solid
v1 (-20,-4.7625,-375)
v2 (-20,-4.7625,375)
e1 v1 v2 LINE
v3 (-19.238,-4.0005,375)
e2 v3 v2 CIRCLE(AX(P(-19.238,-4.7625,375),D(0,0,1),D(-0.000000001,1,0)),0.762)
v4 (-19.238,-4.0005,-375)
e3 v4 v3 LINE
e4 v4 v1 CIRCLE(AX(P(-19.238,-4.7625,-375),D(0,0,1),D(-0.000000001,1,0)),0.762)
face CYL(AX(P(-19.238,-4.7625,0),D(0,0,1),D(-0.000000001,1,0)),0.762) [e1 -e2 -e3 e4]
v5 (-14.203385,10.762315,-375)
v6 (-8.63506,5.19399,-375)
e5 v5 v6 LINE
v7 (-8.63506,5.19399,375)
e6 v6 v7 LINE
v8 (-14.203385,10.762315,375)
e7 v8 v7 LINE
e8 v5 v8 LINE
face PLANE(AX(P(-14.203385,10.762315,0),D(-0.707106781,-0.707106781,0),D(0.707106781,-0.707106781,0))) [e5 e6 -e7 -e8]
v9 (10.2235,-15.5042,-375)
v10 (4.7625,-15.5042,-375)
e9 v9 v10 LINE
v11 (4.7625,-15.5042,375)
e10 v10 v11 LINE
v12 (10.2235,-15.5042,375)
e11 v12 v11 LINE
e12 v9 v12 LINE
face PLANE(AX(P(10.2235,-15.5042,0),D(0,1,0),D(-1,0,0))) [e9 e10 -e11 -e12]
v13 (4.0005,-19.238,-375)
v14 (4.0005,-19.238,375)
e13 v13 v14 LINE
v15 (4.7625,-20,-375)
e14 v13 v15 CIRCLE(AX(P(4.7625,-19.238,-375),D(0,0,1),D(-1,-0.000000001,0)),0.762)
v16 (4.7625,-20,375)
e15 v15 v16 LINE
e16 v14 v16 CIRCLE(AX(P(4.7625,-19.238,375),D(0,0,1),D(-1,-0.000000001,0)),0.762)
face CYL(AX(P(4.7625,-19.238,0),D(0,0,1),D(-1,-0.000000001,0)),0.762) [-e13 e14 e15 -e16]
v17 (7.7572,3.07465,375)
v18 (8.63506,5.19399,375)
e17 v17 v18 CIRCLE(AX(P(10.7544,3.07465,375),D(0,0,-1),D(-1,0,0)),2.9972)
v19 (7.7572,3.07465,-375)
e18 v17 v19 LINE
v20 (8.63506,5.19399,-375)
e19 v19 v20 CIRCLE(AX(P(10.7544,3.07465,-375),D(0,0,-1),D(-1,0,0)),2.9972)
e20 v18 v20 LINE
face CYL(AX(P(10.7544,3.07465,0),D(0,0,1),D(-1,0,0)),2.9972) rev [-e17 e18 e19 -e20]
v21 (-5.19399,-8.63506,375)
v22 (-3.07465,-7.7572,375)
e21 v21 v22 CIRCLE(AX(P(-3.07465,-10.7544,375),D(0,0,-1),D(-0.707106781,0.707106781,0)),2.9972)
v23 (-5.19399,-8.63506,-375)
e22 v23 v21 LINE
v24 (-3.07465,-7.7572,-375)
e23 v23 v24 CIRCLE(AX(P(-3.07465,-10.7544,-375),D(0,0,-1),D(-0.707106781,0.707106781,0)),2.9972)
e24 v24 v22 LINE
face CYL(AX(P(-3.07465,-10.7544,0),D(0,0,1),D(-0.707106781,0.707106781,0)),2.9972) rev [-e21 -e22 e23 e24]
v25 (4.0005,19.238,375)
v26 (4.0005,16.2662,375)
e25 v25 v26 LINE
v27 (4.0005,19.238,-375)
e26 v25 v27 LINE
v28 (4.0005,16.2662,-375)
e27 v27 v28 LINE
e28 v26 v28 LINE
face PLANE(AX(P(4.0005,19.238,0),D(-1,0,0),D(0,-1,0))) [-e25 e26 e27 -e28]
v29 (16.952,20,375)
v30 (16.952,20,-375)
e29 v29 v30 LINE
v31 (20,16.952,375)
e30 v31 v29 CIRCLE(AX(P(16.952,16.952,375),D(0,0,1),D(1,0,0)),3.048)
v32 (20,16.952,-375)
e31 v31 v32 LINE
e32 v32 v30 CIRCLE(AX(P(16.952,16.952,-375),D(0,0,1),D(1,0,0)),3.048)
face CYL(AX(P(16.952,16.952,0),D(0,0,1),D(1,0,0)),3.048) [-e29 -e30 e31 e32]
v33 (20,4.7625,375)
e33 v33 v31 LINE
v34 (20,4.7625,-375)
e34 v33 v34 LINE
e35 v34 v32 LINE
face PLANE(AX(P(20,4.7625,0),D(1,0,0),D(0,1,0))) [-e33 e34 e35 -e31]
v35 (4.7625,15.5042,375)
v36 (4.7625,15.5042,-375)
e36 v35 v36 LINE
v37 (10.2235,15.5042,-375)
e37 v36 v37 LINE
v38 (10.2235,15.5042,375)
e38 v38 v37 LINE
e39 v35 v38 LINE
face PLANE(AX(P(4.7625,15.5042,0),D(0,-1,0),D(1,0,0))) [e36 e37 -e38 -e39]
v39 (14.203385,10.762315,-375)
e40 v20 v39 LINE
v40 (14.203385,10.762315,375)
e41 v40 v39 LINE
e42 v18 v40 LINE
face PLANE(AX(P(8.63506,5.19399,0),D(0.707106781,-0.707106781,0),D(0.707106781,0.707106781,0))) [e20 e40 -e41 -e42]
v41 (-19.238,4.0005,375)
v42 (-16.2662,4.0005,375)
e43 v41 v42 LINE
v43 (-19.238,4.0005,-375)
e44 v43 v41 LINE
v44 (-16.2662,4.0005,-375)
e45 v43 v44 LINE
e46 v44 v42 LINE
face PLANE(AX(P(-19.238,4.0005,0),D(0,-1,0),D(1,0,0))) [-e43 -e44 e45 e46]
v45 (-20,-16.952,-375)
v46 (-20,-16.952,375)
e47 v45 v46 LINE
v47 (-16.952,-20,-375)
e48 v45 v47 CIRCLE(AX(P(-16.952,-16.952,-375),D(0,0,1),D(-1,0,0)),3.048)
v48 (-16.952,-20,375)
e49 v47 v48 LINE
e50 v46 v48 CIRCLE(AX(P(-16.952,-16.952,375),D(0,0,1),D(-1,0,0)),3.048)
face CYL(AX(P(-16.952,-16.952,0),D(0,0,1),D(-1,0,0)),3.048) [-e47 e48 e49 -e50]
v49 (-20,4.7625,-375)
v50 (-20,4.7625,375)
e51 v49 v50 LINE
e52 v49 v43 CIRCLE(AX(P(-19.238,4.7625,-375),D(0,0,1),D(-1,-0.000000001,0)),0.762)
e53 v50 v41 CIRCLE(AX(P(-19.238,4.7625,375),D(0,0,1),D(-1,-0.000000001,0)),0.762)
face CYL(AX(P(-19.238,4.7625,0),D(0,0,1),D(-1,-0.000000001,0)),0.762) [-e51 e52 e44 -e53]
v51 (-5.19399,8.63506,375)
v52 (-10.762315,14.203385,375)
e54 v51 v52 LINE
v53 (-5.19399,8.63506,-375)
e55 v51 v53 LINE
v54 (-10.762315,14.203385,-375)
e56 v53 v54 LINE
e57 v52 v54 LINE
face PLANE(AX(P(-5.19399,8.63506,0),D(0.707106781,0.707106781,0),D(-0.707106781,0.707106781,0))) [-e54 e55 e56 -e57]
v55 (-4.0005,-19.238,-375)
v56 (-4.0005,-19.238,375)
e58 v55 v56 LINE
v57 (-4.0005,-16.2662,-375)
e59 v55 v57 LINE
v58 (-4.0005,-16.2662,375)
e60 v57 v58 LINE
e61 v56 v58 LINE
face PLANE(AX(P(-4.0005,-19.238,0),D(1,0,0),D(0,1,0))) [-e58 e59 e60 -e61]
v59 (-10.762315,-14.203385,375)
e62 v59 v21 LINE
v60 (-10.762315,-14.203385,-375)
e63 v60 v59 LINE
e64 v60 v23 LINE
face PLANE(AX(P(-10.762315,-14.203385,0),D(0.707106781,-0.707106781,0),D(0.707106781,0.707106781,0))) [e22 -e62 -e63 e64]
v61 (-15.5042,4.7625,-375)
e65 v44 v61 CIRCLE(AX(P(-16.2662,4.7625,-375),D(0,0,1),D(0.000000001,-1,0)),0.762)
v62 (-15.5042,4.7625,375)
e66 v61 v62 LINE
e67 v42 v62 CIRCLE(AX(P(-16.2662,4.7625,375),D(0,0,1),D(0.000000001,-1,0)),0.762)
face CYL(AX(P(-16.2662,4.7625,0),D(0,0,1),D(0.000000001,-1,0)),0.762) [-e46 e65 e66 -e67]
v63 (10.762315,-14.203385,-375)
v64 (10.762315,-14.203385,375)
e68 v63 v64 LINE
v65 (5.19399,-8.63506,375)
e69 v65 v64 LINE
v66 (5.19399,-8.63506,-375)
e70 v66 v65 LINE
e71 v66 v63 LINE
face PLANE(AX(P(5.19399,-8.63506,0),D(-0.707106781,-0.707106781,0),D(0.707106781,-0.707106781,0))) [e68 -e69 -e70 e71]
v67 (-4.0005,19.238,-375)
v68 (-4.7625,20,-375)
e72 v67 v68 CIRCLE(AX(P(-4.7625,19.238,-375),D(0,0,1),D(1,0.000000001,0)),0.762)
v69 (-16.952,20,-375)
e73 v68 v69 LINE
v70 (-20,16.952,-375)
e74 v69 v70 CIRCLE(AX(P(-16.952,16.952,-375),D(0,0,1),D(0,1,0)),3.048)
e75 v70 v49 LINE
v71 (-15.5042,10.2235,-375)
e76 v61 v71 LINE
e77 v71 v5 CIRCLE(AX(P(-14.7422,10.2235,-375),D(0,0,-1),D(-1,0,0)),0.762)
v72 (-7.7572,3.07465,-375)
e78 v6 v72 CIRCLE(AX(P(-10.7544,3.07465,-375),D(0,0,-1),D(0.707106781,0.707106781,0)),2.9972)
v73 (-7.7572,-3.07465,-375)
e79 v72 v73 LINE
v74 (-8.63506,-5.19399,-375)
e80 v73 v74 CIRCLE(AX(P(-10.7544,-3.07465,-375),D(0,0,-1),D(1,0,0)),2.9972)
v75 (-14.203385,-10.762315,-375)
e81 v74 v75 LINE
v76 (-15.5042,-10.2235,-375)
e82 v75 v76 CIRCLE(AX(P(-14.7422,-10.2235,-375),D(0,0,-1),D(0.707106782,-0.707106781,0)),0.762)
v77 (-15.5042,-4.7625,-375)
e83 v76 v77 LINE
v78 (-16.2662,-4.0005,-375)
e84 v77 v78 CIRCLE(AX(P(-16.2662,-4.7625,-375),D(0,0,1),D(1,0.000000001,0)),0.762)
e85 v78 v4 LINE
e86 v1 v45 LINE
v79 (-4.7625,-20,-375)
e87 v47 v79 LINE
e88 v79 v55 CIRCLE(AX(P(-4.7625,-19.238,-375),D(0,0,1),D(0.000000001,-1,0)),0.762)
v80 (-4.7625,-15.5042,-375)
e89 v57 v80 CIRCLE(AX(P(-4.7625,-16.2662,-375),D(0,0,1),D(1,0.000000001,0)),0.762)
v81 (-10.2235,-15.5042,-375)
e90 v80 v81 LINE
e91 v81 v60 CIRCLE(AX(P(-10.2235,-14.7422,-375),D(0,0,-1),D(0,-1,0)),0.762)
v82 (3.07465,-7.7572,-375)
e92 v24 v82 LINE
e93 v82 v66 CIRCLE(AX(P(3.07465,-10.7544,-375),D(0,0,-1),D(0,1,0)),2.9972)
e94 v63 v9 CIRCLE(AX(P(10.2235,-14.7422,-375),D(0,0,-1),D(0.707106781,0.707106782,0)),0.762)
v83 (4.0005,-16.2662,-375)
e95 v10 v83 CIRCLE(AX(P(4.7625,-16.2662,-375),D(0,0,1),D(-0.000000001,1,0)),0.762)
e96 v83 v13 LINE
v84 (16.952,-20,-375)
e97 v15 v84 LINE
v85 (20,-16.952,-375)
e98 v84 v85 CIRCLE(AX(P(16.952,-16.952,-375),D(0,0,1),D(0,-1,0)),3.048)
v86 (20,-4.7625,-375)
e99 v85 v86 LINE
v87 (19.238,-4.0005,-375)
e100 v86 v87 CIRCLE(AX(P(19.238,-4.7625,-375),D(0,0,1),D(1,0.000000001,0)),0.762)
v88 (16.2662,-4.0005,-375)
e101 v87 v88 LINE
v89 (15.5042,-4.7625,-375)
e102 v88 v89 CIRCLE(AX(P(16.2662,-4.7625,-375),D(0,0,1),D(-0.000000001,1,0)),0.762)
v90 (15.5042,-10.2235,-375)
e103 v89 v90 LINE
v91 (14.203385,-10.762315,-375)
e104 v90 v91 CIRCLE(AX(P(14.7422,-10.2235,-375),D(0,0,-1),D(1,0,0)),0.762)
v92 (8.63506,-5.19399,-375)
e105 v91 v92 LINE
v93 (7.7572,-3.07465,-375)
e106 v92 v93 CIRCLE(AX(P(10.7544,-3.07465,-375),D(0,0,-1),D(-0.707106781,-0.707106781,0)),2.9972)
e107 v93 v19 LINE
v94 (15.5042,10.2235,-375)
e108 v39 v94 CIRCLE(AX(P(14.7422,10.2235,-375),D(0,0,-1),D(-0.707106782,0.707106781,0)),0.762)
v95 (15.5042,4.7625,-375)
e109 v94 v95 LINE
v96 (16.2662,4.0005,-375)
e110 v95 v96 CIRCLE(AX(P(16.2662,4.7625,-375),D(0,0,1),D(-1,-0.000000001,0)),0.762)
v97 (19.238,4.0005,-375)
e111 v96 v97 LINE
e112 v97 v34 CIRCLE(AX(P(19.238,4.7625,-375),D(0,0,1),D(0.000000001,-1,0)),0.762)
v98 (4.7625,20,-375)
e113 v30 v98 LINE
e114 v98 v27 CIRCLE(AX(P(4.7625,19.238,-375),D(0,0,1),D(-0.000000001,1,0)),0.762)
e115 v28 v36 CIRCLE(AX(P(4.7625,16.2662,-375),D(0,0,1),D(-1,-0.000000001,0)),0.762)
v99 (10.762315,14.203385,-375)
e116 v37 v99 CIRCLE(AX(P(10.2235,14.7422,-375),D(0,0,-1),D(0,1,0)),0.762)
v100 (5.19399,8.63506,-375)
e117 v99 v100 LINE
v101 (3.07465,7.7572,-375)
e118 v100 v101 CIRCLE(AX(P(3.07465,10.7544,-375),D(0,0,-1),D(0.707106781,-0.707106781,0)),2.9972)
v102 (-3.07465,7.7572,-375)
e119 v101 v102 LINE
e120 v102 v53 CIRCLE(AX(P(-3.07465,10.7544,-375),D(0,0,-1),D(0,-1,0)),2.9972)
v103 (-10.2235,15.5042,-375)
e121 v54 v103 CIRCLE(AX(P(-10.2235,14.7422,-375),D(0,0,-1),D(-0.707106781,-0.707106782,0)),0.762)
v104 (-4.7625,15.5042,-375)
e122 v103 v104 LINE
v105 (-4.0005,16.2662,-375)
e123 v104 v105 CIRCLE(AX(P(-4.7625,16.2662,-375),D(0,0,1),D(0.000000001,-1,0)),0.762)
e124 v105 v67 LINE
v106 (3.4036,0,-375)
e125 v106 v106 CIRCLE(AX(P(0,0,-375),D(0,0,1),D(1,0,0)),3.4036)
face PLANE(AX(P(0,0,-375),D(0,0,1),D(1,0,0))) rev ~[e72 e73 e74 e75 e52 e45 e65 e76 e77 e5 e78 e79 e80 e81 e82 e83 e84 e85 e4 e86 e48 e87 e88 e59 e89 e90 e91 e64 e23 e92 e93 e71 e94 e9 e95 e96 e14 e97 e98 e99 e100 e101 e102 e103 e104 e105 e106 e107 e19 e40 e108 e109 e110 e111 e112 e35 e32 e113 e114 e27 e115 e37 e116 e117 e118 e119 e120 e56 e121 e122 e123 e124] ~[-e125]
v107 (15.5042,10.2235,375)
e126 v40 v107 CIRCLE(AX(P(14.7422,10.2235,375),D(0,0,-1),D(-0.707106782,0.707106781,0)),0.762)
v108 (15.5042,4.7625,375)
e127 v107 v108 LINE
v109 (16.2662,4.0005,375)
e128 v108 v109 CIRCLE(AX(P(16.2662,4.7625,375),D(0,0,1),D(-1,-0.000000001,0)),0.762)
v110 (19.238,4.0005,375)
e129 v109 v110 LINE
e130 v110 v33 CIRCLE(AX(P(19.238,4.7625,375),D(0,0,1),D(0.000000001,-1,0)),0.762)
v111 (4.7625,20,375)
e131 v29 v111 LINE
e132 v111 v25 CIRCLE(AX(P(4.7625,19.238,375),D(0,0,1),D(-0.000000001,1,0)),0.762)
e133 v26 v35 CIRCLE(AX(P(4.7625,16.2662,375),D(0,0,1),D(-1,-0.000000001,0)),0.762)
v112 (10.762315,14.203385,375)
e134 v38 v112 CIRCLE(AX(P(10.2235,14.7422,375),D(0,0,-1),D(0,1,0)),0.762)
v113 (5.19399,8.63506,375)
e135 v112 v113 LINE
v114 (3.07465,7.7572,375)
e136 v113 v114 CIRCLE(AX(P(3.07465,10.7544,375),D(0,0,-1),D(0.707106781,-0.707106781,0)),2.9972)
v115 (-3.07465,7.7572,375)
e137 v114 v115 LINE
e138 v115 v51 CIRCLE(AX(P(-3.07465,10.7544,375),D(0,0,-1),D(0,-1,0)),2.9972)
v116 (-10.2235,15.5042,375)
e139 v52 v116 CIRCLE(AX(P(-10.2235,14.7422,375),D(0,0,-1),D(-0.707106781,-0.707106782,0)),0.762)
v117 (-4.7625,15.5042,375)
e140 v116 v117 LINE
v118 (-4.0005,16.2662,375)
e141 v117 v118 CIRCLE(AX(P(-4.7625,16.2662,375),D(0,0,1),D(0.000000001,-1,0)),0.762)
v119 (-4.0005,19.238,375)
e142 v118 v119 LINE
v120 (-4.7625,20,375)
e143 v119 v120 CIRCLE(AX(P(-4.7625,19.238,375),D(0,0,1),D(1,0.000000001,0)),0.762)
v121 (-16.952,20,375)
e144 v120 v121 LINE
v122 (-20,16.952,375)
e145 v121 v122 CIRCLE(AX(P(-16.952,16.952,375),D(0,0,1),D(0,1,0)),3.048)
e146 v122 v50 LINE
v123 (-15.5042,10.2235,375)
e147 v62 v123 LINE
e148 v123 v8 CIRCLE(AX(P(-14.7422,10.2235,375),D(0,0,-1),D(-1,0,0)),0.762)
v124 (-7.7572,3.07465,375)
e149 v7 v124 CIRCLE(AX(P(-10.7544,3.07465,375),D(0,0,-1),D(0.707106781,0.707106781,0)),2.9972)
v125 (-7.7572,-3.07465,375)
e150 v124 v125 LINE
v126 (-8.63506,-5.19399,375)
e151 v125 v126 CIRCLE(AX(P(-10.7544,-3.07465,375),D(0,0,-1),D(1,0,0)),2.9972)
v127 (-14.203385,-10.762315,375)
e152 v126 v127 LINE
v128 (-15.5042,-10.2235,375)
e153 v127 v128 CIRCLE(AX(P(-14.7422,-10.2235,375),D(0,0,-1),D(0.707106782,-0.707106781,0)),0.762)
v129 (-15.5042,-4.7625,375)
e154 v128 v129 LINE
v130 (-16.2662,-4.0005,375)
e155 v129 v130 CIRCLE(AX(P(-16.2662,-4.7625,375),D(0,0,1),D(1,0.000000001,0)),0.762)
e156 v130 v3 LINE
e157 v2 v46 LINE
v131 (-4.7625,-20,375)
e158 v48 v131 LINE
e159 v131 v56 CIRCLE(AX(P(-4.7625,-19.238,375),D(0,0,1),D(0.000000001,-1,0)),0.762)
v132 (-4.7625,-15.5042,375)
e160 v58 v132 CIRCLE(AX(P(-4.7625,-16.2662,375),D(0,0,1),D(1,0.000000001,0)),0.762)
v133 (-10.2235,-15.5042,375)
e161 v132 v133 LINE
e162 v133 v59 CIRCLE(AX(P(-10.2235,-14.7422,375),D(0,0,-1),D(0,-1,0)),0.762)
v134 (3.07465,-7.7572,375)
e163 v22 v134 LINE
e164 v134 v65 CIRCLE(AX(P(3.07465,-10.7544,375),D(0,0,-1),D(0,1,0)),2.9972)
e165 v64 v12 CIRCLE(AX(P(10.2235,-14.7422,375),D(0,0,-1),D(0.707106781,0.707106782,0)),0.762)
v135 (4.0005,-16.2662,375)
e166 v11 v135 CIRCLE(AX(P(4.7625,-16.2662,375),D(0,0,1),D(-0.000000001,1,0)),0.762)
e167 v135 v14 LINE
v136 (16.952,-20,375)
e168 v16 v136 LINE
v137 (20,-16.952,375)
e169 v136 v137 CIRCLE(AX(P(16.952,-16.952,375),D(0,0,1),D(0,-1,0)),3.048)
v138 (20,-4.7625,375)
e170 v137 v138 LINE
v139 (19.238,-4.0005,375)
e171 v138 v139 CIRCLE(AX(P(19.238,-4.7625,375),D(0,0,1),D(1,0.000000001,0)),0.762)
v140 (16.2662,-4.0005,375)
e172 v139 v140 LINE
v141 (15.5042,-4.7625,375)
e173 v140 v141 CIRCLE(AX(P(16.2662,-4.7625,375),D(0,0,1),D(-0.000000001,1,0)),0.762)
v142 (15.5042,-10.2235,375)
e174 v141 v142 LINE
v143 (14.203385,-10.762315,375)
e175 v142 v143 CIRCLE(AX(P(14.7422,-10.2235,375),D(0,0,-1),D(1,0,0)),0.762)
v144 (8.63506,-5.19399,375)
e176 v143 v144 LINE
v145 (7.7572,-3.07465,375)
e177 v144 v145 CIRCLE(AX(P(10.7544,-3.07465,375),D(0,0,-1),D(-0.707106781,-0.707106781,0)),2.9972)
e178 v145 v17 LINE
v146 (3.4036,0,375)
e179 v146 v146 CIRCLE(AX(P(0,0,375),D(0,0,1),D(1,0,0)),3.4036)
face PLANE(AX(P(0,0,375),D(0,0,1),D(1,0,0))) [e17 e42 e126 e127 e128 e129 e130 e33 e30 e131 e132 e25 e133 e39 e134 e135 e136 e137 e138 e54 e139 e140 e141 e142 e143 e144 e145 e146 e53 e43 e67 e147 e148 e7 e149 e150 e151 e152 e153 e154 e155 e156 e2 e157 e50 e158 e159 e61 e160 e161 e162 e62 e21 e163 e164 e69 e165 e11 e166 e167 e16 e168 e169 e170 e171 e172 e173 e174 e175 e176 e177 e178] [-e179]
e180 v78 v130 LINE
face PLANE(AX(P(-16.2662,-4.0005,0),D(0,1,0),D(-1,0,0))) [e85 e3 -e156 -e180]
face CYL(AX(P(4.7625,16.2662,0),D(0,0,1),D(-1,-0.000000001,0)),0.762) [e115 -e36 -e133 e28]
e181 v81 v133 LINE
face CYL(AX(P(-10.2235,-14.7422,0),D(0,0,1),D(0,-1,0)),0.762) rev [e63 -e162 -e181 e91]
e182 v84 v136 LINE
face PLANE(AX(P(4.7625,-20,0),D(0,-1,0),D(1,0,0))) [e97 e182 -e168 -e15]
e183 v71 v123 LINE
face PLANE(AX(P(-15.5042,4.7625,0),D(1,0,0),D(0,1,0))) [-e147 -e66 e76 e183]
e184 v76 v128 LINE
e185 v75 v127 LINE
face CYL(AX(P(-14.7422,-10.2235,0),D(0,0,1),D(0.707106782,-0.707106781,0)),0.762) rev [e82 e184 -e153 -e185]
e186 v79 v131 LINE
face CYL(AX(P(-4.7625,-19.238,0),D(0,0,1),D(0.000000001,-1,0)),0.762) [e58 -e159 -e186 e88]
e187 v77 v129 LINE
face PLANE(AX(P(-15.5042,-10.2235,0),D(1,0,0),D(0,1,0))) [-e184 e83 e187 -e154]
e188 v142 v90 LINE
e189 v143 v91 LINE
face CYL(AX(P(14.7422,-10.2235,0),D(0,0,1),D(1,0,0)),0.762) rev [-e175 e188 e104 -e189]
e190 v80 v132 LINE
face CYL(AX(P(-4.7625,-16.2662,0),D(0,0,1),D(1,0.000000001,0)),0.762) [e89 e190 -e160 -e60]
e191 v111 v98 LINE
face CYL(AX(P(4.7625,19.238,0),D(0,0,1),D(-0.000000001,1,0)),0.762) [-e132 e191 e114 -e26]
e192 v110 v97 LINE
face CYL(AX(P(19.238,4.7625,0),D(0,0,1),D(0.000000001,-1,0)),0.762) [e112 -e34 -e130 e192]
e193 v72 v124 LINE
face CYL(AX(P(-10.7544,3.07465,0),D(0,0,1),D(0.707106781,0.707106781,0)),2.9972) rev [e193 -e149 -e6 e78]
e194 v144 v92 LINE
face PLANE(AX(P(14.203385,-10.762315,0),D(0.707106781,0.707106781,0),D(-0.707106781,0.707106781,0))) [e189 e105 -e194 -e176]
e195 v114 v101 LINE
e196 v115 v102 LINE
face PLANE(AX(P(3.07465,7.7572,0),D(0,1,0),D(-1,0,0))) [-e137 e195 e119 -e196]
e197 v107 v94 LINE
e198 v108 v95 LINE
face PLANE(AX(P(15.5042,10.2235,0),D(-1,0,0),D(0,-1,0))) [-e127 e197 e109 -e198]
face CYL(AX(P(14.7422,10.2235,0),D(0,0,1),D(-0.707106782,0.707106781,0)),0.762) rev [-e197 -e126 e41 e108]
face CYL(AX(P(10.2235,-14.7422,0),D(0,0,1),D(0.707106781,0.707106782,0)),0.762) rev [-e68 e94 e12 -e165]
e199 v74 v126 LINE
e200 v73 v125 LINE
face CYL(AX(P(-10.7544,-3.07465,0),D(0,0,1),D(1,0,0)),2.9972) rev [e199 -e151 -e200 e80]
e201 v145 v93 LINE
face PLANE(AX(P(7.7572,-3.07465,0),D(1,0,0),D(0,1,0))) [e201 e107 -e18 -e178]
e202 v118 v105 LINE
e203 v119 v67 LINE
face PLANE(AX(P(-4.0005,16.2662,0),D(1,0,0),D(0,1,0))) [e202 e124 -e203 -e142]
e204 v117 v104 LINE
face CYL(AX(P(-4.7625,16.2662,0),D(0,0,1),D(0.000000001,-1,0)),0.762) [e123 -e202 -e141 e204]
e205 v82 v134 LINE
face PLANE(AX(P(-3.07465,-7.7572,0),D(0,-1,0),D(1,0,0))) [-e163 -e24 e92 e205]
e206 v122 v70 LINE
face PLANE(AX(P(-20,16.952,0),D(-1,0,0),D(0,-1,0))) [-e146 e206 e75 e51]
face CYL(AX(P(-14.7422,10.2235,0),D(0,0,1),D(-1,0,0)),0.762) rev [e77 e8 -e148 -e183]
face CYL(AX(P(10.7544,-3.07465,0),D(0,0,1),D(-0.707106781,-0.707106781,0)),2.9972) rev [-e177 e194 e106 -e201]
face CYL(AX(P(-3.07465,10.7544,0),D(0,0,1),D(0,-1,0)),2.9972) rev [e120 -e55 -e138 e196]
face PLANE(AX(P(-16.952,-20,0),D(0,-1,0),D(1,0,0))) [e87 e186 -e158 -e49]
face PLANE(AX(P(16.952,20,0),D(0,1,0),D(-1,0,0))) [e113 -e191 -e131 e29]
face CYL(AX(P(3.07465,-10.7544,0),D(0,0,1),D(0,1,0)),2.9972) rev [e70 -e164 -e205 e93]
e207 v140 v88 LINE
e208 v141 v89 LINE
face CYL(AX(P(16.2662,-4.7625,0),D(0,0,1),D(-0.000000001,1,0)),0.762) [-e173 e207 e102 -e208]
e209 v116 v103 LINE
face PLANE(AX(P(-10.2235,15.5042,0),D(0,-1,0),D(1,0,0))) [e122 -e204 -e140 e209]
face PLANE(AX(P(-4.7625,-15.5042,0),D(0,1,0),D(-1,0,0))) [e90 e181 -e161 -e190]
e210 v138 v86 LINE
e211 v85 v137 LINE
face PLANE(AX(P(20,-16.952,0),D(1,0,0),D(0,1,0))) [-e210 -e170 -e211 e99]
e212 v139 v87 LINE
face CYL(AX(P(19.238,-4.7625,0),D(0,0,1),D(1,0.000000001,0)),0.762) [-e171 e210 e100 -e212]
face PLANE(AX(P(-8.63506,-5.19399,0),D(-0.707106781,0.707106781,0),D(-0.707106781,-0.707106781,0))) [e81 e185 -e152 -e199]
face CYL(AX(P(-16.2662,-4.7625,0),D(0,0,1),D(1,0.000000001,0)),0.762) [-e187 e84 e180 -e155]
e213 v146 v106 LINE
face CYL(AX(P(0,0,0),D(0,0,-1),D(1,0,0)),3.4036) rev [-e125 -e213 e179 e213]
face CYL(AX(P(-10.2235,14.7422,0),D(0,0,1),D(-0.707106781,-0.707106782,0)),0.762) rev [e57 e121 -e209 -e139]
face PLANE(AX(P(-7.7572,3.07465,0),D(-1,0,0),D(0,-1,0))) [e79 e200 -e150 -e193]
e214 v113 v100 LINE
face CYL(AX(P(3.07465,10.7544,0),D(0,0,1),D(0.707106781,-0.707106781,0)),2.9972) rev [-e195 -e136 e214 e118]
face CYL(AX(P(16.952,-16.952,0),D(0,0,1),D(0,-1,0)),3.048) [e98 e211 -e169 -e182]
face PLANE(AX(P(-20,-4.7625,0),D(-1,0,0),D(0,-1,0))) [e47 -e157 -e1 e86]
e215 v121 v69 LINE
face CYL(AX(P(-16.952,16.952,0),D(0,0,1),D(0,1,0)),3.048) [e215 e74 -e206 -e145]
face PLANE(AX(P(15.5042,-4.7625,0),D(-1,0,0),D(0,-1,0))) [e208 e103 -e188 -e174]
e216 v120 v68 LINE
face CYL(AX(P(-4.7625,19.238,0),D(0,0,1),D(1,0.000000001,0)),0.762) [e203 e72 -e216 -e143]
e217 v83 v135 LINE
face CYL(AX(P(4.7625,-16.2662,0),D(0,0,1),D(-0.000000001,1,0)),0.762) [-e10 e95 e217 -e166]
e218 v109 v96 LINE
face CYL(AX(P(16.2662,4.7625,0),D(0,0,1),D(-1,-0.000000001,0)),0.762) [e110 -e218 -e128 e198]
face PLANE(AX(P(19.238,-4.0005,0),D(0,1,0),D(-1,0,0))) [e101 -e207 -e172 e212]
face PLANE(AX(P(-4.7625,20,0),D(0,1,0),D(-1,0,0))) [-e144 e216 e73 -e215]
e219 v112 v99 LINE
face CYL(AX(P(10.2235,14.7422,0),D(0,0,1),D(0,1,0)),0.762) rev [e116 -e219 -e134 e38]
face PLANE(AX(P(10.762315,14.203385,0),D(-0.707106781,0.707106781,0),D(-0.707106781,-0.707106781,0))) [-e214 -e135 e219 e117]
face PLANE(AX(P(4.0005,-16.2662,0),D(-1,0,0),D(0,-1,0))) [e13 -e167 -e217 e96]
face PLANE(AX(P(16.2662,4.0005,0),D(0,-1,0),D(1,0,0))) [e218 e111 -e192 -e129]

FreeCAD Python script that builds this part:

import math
import FreeCAD as App
import Part
import Sketcher
Q = App.Units.Quantity

doc = App.newDocument("Part")
params = doc.addObject("Spreadsheet::Sheet", "Params")
for row, (alias, value) in enumerate([
    ("sketch1_radius", "0.03 in"),
    ("sketch1_radius2", "0.12 in"),
    ("sketch1_diameter", "0.268 in"),
    ("sketch1_radius3", "0.118 in"),
    ("sketch1_width", "0.117 in"),
    ("pad1_length", "750 mm"),
], start=1):
    params.set(f"A{row}", alias)
    params.set(f"B{row}", "=" + value)
    params.setAlias(f"B{row}", alias)

body = doc.addObject("PartDesign::Body", "Body")

# Sketch on XY plane
sketch1 = body.newObject("Sketcher::SketchObject", "Sketch")
sketch1.AttachmentSupport = (doc.getObject("XY_Plane"), [""])
sketch1.MapMode = "FlatFace"
sketch1.addGeometry(Part.LineSegment(App.Vector(-20, 16.952, 0), App.Vector(-20, 4.7625, 0)), False)
sketch1.addGeometry(Part.ArcOfCircle(Part.Circle(App.Vector(-19.238, 4.7625, 0), App.Vector(0, 0, 1), 0.762), math.radians(-180), math.radians(-90)), False)
sketch1.addGeometry(Part.LineSegment(App.Vector(-19.238, 4.0005, 0), App.Vector(-16.2662, 4.0005, 0)), False)
sketch1.addGeometry(Part.ArcOfCircle(Part.Circle(App.Vector(-16.2662, 4.7625, 0), App.Vector(0, 0, 1), 0.762), math.radians(-90), math.radians(0)), False)
sketch1.addGeometry(Part.LineSegment(App.Vector(-15.5042, 4.7625, 0), App.Vector(-15.5042, 10.2235, 0)), False)
sketch1.addGeometry(Part.ArcOfCircle(Part.Circle(App.Vector(-14.7422, 10.2235, 0), App.Vector(0, 0, 1), 0.762), math.radians(45), math.radians(180)), False)
sketch1.addGeometry(Part.LineSegment(App.Vector(-14.203385, 10.762315, 0), App.Vector(-8.63506, 5.19399, 0)), False)
sketch1.addGeometry(Part.ArcOfCircle(Part.Circle(App.Vector(-10.7544, 3.07465, 0), App.Vector(0, 0, 1), 2.9972), math.radians(0), math.radians(45)), False)
sketch1.addGeometry(Part.LineSegment(App.Vector(-7.7572, 3.07465, 0), App.Vector(-7.7572, -3.07465, 0)), False)
sketch1.addGeometry(Part.ArcOfCircle(Part.Circle(App.Vector(-10.7544, -3.07465, 0), App.Vector(0, 0, 1), 2.9972), math.radians(-45), math.radians(0)), False)
sketch1.addGeometry(Part.LineSegment(App.Vector(-8.63506, -5.19399, 0), App.Vector(-14.203385, -10.762315, 0)), False)
sketch1.addGeometry(Part.ArcOfCircle(Part.Circle(App.Vector(-14.7422, -10.2235, 0), App.Vector(0, 0, 1), 0.762), math.radians(180), math.radians(315)), False)
sketch1.addGeometry(Part.LineSegment(App.Vector(-15.5042, -10.2235, 0), App.Vector(-15.5042, -4.7625, 0)), False)
sketch1.addGeometry(Part.ArcOfCircle(Part.Circle(App.Vector(-16.2662, -4.7625, 0), App.Vector(0, 0, 1), 0.762), math.radians(0), math.radians(90)), False)
sketch1.addGeometry(Part.LineSegment(App.Vector(-16.2662, -4.0005, 0), App.Vector(-19.238, -4.0005, 0)), False)
sketch1.addGeometry(Part.ArcOfCircle(Part.Circle(App.Vector(-19.238, -4.7625, 0), App.Vector(0, 0, 1), 0.762), math.radians(90), math.radians(180)), False)
sketch1.addGeometry(Part.LineSegment(App.Vector(-20, -4.7625, 0), App.Vector(-20, -16.952, 0)), False)
sketch1.addGeometry(Part.ArcOfCircle(Part.Circle(App.Vector(-16.952, -16.952, 0), App.Vector(0, 0, 1), 3.048), math.radians(180), math.radians(270)), False)
sketch1.addGeometry(Part.LineSegment(App.Vector(-16.952, -20, 0), App.Vector(-4.7625, -20, 0)), False)
sketch1.addGeometry(Part.ArcOfCircle(Part.Circle(App.Vector(-4.7625, -19.238, 0), App.Vector(0, 0, 1), 0.762), math.radians(-90), math.radians(0)), False)
sketch1.addGeometry(Part.LineSegment(App.Vector(-4.0005, -19.238, 0), App.Vector(-4.0005, -16.2662, 0)), False)
sketch1.addGeometry(Part.ArcOfCircle(Part.Circle(App.Vector(-4.7625, -16.2662, 0), App.Vector(0, 0, 1), 0.762), math.radians(0), math.radians(90)), False)
sketch1.addGeometry(Part.LineSegment(App.Vector(-4.7625, -15.5042, 0), App.Vector(-10.2235, -15.5042, 0)), False)
sketch1.addGeometry(Part.ArcOfCircle(Part.Circle(App.Vector(-10.2235, -14.7422, 0), App.Vector(0, 0, 1), 0.762), math.radians(135), math.radians(270)), False)
sketch1.addGeometry(Part.LineSegment(App.Vector(-10.762315, -14.203385, 0), App.Vector(-5.19399, -8.63506, 0)), False)
sketch1.addGeometry(Part.ArcOfCircle(Part.Circle(App.Vector(-3.07465, -10.7544, 0), App.Vector(0, 0, 1), 2.9972), math.radians(90), math.radians(135)), False)
sketch1.addGeometry(Part.LineSegment(App.Vector(-3.07465, -7.7572, 0), App.Vector(3.07465, -7.7572, 0)), False)
sketch1.addGeometry(Part.ArcOfCircle(Part.Circle(App.Vector(3.07465, -10.7544, 0), App.Vector(0, 0, 1), 2.9972), math.radians(45), math.radians(90)), False)
sketch1.addGeometry(Part.LineSegment(App.Vector(5.19399, -8.63506, 0), App.Vector(10.762315, -14.203385, 0)), False)
sketch1.addGeometry(Part.ArcOfCircle(Part.Circle(App.Vector(10.2235, -14.7422, 0), App.Vector(0, 0, 1), 0.762), math.radians(-90), math.radians(45)), False)
sketch1.addGeometry(Part.LineSegment(App.Vector(10.2235, -15.5042, 0), App.Vector(4.7625, -15.5042, 0)), False)
sketch1.addGeometry(Part.ArcOfCircle(Part.Circle(App.Vector(4.7625, -16.2662, 0), App.Vector(0, 0, 1), 0.762), math.radians(90), math.radians(180)), False)
sketch1.addGeometry(Part.LineSegment(App.Vector(4.0005, -16.2662, 0), App.Vector(4.0005, -19.238, 0)), False)
sketch1.addGeometry(Part.ArcOfCircle(Part.Circle(App.Vector(4.7625, -19.238, 0), App.Vector(0, 0, 1), 0.762), math.radians(-180), math.radians(-90)), False)
sketch1.addGeometry(Part.LineSegment(App.Vector(4.7625, -20, 0), App.Vector(16.952, -20, 0)), False)
sketch1.addGeometry(Part.ArcOfCircle(Part.Circle(App.Vector(16.952, -16.952, 0), App.Vector(0, 0, 1), 3.048), math.radians(-90), math.radians(0)), False)
sketch1.addGeometry(Part.LineSegment(App.Vector(20, -16.952, 0), App.Vector(20, -4.7625, 0)), False)
sketch1.addGeometry(Part.ArcOfCircle(Part.Circle(App.Vector(19.238, -4.7625, 0), App.Vector(0, 0, 1), 0.762), math.radians(0), math.radians(90)), False)
sketch1.addGeometry(Part.LineSegment(App.Vector(19.238, -4.0005, 0), App.Vector(16.2662, -4.0005, 0)), False)
sketch1.addGeometry(Part.ArcOfCircle(Part.Circle(App.Vector(16.2662, -4.7625, 0), App.Vector(0, 0, 1), 0.762), math.radians(90), math.radians(180)), False)
sketch1.addGeometry(Part.LineSegment(App.Vector(15.5042, -4.7625, 0), App.Vector(15.5042, -10.2235, 0)), False)
sketch1.addGeometry(Part.ArcOfCircle(Part.Circle(App.Vector(14.7422, -10.2235, 0), App.Vector(0, 0, 1), 0.762), math.radians(-135), math.radians(0)), False)
sketch1.addGeometry(Part.LineSegment(App.Vector(14.203385, -10.762315, 0), App.Vector(8.63506, -5.19399, 0)), False)
sketch1.addGeometry(Part.ArcOfCircle(Part.Circle(App.Vector(10.7544, -3.07465, 0), App.Vector(0, 0, 1), 2.9972), math.radians(180), math.radians(225)), False)
sketch1.addGeometry(Part.LineSegment(App.Vector(7.7572, -3.07465, 0), App.Vector(7.7572, 3.07465, 0)), False)
sketch1.addGeometry(Part.ArcOfCircle(Part.Circle(App.Vector(10.7544, 3.07465, 0), App.Vector(0, 0, 1), 2.9972), math.radians(135), math.radians(180)), False)
sketch1.addGeometry(Part.LineSegment(App.Vector(8.63506, 5.19399, 0), App.Vector(14.203385, 10.762315, 0)), False)
sketch1.addGeometry(Part.ArcOfCircle(Part.Circle(App.Vector(14.7422, 10.2235, 0), App.Vector(0, 0, 1), 0.762), math.radians(0), math.radians(135)), False)
sketch1.addGeometry(Part.LineSegment(App.Vector(15.5042, 10.2235, 0), App.Vector(15.5042, 4.7625, 0)), False)
sketch1.addGeometry(Part.ArcOfCircle(Part.Circle(App.Vector(16.2662, 4.7625, 0), App.Vector(0, 0, 1), 0.762), math.radians(-180), math.radians(-90)), False)
sketch1.addGeometry(Part.LineSegment(App.Vector(16.2662, 4.0005, 0), App.Vector(19.238, 4.0005, 0)), False)
sketch1.addGeometry(Part.ArcOfCircle(Part.Circle(App.Vector(19.238, 4.7625, 0), App.Vector(0, 0, 1), 0.762), math.radians(-90), math.radians(0)), False)
sketch1.addGeometry(Part.LineSegment(App.Vector(20, 4.7625, 0), App.Vector(20, 16.952, 0)), False)
sketch1.addGeometry(Part.ArcOfCircle(Part.Circle(App.Vector(16.952, 16.952, 0), App.Vector(0, 0, 1), 3.048), math.radians(0), math.radians(90)), False)
sketch1.addGeometry(Part.LineSegment(App.Vector(16.952, 20, 0), App.Vector(4.7625, 20, 0)), False)
sketch1.addGeometry(Part.ArcOfCircle(Part.Circle(App.Vector(4.7625, 19.238, 0), App.Vector(0, 0, 1), 0.762), math.radians(90), math.radians(180)), False)
sketch1.addGeometry(Part.LineSegment(App.Vector(4.0005, 19.238, 0), App.Vector(4.0005, 16.2662, 0)), False)
sketch1.addGeometry(Part.ArcOfCircle(Part.Circle(App.Vector(4.7625, 16.2662, 0), App.Vector(0, 0, 1), 0.762), math.radians(-180), math.radians(-90)), False)
sketch1.addGeometry(Part.LineSegment(App.Vector(4.7625, 15.5042, 0), App.Vector(10.2235, 15.5042, 0)), False)
sketch1.addGeometry(Part.ArcOfCircle(Part.Circle(App.Vector(10.2235, 14.7422, 0), App.Vector(0, 0, 1), 0.762), math.radians(-45), math.radians(90)), False)
sketch1.addGeometry(Part.LineSegment(App.Vector(10.762315, 14.203385, 0), App.Vector(5.19399, 8.63506, 0)), False)
sketch1.addGeometry(Part.ArcOfCircle(Part.Circle(App.Vector(3.07465, 10.7544, 0), App.Vector(0, 0, 1), 2.9972), math.radians(-90), math.radians(-45)), False)
sketch1.addGeometry(Part.LineSegment(App.Vector(3.07465, 7.7572, 0), App.Vector(-3.07465, 7.7572, 0)), False)
sketch1.addGeometry(Part.ArcOfCircle(Part.Circle(App.Vector(-3.07465, 10.7544, 0), App.Vector(0, 0, 1), 2.9972), math.radians(-135), math.radians(-90)), False)
sketch1.addGeometry(Part.LineSegment(App.Vector(-5.19399, 8.63506, 0), App.Vector(-10.762315, 14.203385, 0)), False)
sketch1.addGeometry(Part.ArcOfCircle(Part.Circle(App.Vector(-10.2235, 14.7422, 0), App.Vector(0, 0, 1), 0.762), math.radians(90), math.radians(225)), False)
sketch1.addGeometry(Part.LineSegment(App.Vector(-10.2235, 15.5042, 0), App.Vector(-4.7625, 15.5042, 0)), False)
sketch1.addGeometry(Part.ArcOfCircle(Part.Circle(App.Vector(-4.7625, 16.2662, 0), App.Vector(0, 0, 1), 0.762), math.radians(-90), math.radians(0)), False)
sketch1.addGeometry(Part.LineSegment(App.Vector(-4.0005, 16.2662, 0), App.Vector(-4.0005, 19.238, 0)), False)
sketch1.addGeometry(Part.ArcOfCircle(Part.Circle(App.Vector(-4.7625, 19.238, 0), App.Vector(0, 0, 1), 0.762), math.radians(0), math.radians(90)), False)
sketch1.addGeometry(Part.LineSegment(App.Vector(-4.7625, 20, 0), App.Vector(-16.952, 20, 0)), False)
sketch1.addGeometry(Part.ArcOfCircle(Part.Circle(App.Vector(-16.952, 16.952, 0), App.Vector(0, 0, 1), 3.048), math.radians(90), math.radians(180)), False)
sketch1.addGeometry(Part.Circle(App.Vector(0, 0, 0), App.Vector(0, 0, 1), 3.4036), False)
sketch1.addConstraint(Sketcher.Constraint("Tangent", 0, 2, 1, 1))
sketch1.addConstraint(Sketcher.Constraint("Tangent", 1, 2, 2, 1))
sketch1.addConstraint(Sketcher.Constraint("Tangent", 2, 2, 3, 1))
sketch1.addConstraint(Sketcher.Constraint("Tangent", 3, 2, 4, 1))
sketch1.addConstraint(Sketcher.Constraint("Tangent", 4, 2, 5, 2))
sketch1.addConstraint(Sketcher.Constraint("Tangent", 5, 1, 6, 1))
sketch1.addConstraint(Sketcher.Constraint("Tangent", 6, 2, 7, 2))
sketch1.addConstraint(Sketcher.Constraint("Tangent", 7, 1, 8, 1))
sketch1.addConstraint(Sketcher.Constraint("Tangent", 8, 2, 9, 2))
sketch1.addConstraint(Sketcher.Constraint("Tangent", 9, 1, 10, 1))
sketch1.addConstraint(Sketcher.Constraint("Tangent", 10, 2, 11, 2))
sketch1.addConstraint(Sketcher.Constraint("Tangent", 11, 1, 12, 1))
sketch1.addConstraint(Sketcher.Constraint("Tangent", 12, 2, 13, 1))
sketch1.addConstraint(Sketcher.Constraint("Tangent", 13, 2, 14, 1))
sketch1.addConstraint(Sketcher.Constraint("Tangent", 14, 2, 15, 1))
sketch1.addConstraint(Sketcher.Constraint("Tangent", 15, 2, 16, 1))
sketch1.addConstraint(Sketcher.Constraint("Tangent", 16, 2, 17, 1))
sketch1.addConstraint(Sketcher.Constraint("Tangent", 17, 2, 18, 1))
sketch1.addConstraint(Sketcher.Constraint("Tangent", 18, 2, 19, 1))
sketch1.addConstraint(Sketcher.Constraint("Tangent", 19, 2, 20, 1))
sketch1.addConstraint(Sketcher.Constraint("Tangent", 20, 2, 21, 1))
sketch1.addConstraint(Sketcher.Constraint("Tangent", 21, 2, 22, 1))
sketch1.addConstraint(Sketcher.Constraint("Tangent", 22, 2, 23, 2))
sketch1.addConstraint(Sketcher.Constraint("Tangent", 23, 1, 24, 1))
sketch1.addConstraint(Sketcher.Constraint("Tangent", 24, 2, 25, 2))
sketch1.addConstraint(Sketcher.Constraint("Tangent", 25, 1, 26, 1))
sketch1.addConstraint(Sketcher.Constraint("Tangent", 26, 2, 27, 2))
sketch1.addConstraint(Sketcher.Constraint("Tangent", 27, 1, 28, 1))
sketch1.addConstraint(Sketcher.Constraint("Tangent", 28, 2, 29, 2))
sketch1.addConstraint(Sketcher.Constraint("Tangent", 29, 1, 30, 1))
sketch1.addConstraint(Sketcher.Constraint("Tangent", 30, 2, 31, 1))
sketch1.addConstraint(Sketcher.Constraint("Tangent", 31, 2, 32, 1))
sketch1.addConstraint(Sketcher.Constraint("Tangent", 32, 2, 33, 1))
sketch1.addConstraint(Sketcher.Constraint("Tangent", 33, 2, 34, 1))
sketch1.addConstraint(Sketcher.Constraint("Tangent", 34, 2, 35, 1))
sketch1.addConstraint(Sketcher.Constraint("Tangent", 35, 2, 36, 1))
sketch1.addConstraint(Sketcher.Constraint("Tangent", 36, 2, 37, 1))
sketch1.addConstraint(Sketcher.Constraint("Tangent", 37, 2, 38, 1))
sketch1.addConstraint(Sketcher.Constraint("Tangent", 38, 2, 39, 1))
sketch1.addConstraint(Sketcher.Constraint("Tangent", 39, 2, 40, 1))
sketch1.addConstraint(Sketcher.Constraint("Tangent", 40, 2, 41, 2))
sketch1.addConstraint(Sketcher.Constraint("Tangent", 41, 1, 42, 1))
sketch1.addConstraint(Sketcher.Constraint("Tangent", 42, 2, 43, 2))
sketch1.addConstraint(Sketcher.Constraint("Tangent", 43, 1, 44, 1))
sketch1.addConstraint(Sketcher.Constraint("Tangent", 44, 2, 45, 2))
sketch1.addConstraint(Sketcher.Constraint("Tangent", 45, 1, 46, 1))
sketch1.addConstraint(Sketcher.Constraint("Tangent", 46, 2, 47, 2))
sketch1.addConstraint(Sketcher.Constraint("Tangent", 47, 1, 48, 1))
sketch1.addConstraint(Sketcher.Constraint("Tangent", 48, 2, 49, 1))
sketch1.addConstraint(Sketcher.Constraint("Tangent", 49, 2, 50, 1))
sketch1.addConstraint(Sketcher.Constraint("Tangent", 50, 2, 51, 1))
sketch1.addConstraint(Sketcher.Constraint("Tangent", 51, 2, 52, 1))
sketch1.addConstraint(Sketcher.Constraint("Tangent", 52, 2, 53, 1))
sketch1.addConstraint(Sketcher.Constraint("Tangent", 53, 2, 54, 1))
sketch1.addConstraint(Sketcher.Constraint("Tangent", 54, 2, 55, 1))
sketch1.addConstraint(Sketcher.Constraint("Tangent", 55, 2, 56, 1))
sketch1.addConstraint(Sketcher.Constraint("Tangent", 56, 2, 57, 1))
sketch1.addConstraint(Sketcher.Constraint("Tangent", 57, 2, 58, 1))
sketch1.addConstraint(Sketcher.Constraint("Tangent", 58, 2, 59, 2))
sketch1.addConstraint(Sketcher.Constraint("Tangent", 59, 1, 60, 1))
sketch1.addConstraint(Sketcher.Constraint("Tangent", 60, 2, 61, 2))
sketch1.addConstraint(Sketcher.Constraint("Tangent", 61, 1, 62, 1))
sketch1.addConstraint(Sketcher.Constraint("Tangent", 62, 2, 63, 2))
sketch1.addConstraint(Sketcher.Constraint("Tangent", 63, 1, 64, 1))
sketch1.addConstraint(Sketcher.Constraint("Tangent", 64, 2, 65, 2))
sketch1.addConstraint(Sketcher.Constraint("Tangent", 65, 1, 66, 1))
sketch1.addConstraint(Sketcher.Constraint("Tangent", 66, 2, 67, 1))
sketch1.addConstraint(Sketcher.Constraint("Tangent", 67, 2, 68, 1))
sketch1.addConstraint(Sketcher.Constraint("Tangent", 68, 2, 69, 1))
sketch1.addConstraint(Sketcher.Constraint("Tangent", 69, 2, 70, 1))
sketch1.addConstraint(Sketcher.Constraint("Tangent", 70, 2, 71, 1))
sketch1.addConstraint(Sketcher.Constraint("Tangent", 71, 2, 0, 1))
sketch1.addConstraint(Sketcher.Constraint("Vertical", 0))
sketch1.addConstraint(Sketcher.Constraint("Horizontal", 2))
sketch1.addConstraint(Sketcher.Constraint("Vertical", 4))
sketch1.addConstraint(Sketcher.Constraint("Vertical", 8))
sketch1.addConstraint(Sketcher.Constraint("Vertical", 12))
sketch1.addConstraint(Sketcher.Constraint("Horizontal", 14))
sketch1.addConstraint(Sketcher.Constraint("Vertical", 16))
sketch1.addConstraint(Sketcher.Constraint("Horizontal", 18))
sketch1.addConstraint(Sketcher.Constraint("Vertical", 20))
sketch1.addConstraint(Sketcher.Constraint("Horizontal", 22))
sketch1.addConstraint(Sketcher.Constraint("Horizontal", 26))
sketch1.addConstraint(Sketcher.Constraint("Horizontal", 30))
sketch1.addConstraint(Sketcher.Constraint("Vertical", 32))
sketch1.addConstraint(Sketcher.Constraint("Horizontal", 34))
sketch1.addConstraint(Sketcher.Constraint("Vertical", 36))
sketch1.addConstraint(Sketcher.Constraint("Horizontal", 38))
sketch1.addConstraint(Sketcher.Constraint("Vertical", 40))
sketch1.addConstraint(Sketcher.Constraint("Vertical", 44))
sketch1.addConstraint(Sketcher.Constraint("Vertical", 48))
sketch1.addConstraint(Sketcher.Constraint("Horizontal", 50))
sketch1.addConstraint(Sketcher.Constraint("Vertical", 52))
sketch1.addConstraint(Sketcher.Constraint("Horizontal", 54))
sketch1.addConstraint(Sketcher.Constraint("Vertical", 56))
sketch1.addConstraint(Sketcher.Constraint("Horizontal", 58))
sketch1.addConstraint(Sketcher.Constraint("Horizontal", 62))
sketch1.addConstraint(Sketcher.Constraint("Horizontal", 66))
sketch1.addConstraint(Sketcher.Constraint("Vertical", 68))
sketch1.addConstraint(Sketcher.Constraint("Horizontal", 70))
sketch1.addConstraint(Sketcher.Constraint("Coincident", 72, 3, -1, 1))
sketch1.addConstraint(Sketcher.Constraint("Equal", 1, 3))
sketch1.addConstraint(Sketcher.Constraint("Equal", 3, 5))
sketch1.addConstraint(Sketcher.Constraint("Equal", 7, 9))
sketch1.addConstraint(Sketcher.Constraint("Equal", 5, 11))
sketch1.addConstraint(Sketcher.Constraint("Equal", 11, 13))
sketch1.addConstraint(Sketcher.Constraint("Equal", 13, 15))
sketch1.addConstraint(Sketcher.Constraint("Equal", 15, 19))
sketch1.addConstraint(Sketcher.Constraint("Equal", 19, 21))
sketch1.addConstraint(Sketcher.Constraint("Equal", 21, 23))
sketch1.addConstraint(Sketcher.Constraint("Equal", 9, 25))
sketch1.addConstraint(Sketcher.Constraint("Equal", 25, 27))
sketch1.addConstraint(Sketcher.Constraint("Equal", 23, 29))
sketch1.addConstraint(Sketcher.Constraint("Equal", 29, 31))
sketch1.addConstraint(Sketcher.Constraint("Equal", 31, 33))
sketch1.addConstraint(Sketcher.Constraint("Equal", 17, 35))
sketch1.addConstraint(Sketcher.Constraint("Equal", 33, 37))
sketch1.addConstraint(Sketcher.Constraint("Equal", 37, 39))
sketch1.addConstraint(Sketcher.Constraint("Equal", 39, 41))
sketch1.addConstraint(Sketcher.Constraint("Equal", 27, 43))
sketch1.addConstraint(Sketcher.Constraint("Equal", 43, 45))
sketch1.addConstraint(Sketcher.Constraint("Equal", 41, 47))
sketch1.addConstraint(Sketcher.Constraint("Equal", 47, 49))
sketch1.addConstraint(Sketcher.Constraint("Equal", 49, 51))
sketch1.addConstraint(Sketcher.Constraint("Equal", 35, 53))
sketch1.addConstraint(Sketcher.Constraint("Equal", 51, 55))
sketch1.addConstraint(Sketcher.Constraint("Equal", 55, 57))
sketch1.addConstraint(Sketcher.Constraint("Equal", 57, 59))
sketch1.addConstraint(Sketcher.Constraint("Equal", 45, 61))
sketch1.addConstraint(Sketcher.Constraint("Equal", 61, 63))
sketch1.addConstraint(Sketcher.Constraint("Equal", 59, 65))
sketch1.addConstraint(Sketcher.Constraint("Equal", 65, 67))
sketch1.addConstraint(Sketcher.Constraint("Equal", 67, 69))
sketch1.addConstraint(Sketcher.Constraint("Equal", 53, 71))
sketch1.addConstraint(Sketcher.Constraint("Symmetric", 1, 3, 37, 3, -1, 1))
sketch1.addConstraint(Sketcher.Constraint("Symmetric", 5, 3, 41, 3, -1, 1))
sketch1.addConstraint(Sketcher.Constraint("Symmetric", 7, 3, 43, 3, -1, 1))
sketch1.addConstraint(Sketcher.Constraint("Symmetric", 11, 3, 47, 3, -1, 1))
sketch1.addConstraint(Sketcher.Constraint("Symmetric", 15, 3, 51, 3, -1, 1))
sketch1.addConstraint(Sketcher.Constraint("Symmetric", 19, 3, 55, 3, -1, 1))
sketch1.addConstraint(Sketcher.Constraint("Symmetric", 23, 3, 59, 3, -1, 1))
sketch1.addConstraint(Sketcher.Constraint("Symmetric", 25, 3, 61, 3, -1, 1))
sketch1.addConstraint(Sketcher.Constraint("Symmetric", 29, 3, 65, 3, -1, 1))
sketch1.addConstraint(Sketcher.Constraint("Symmetric", 33, 3, 69, 3, -1, 1))
sketch1.addConstraint(Sketcher.Constraint("Symmetric", 23, 3, 29, 3, -2))
sketch1.addConstraint(Sketcher.Constraint("Symmetric", 19, 3, 33, 3, -2))
sketch1.addConstraint(Sketcher.Constraint("Symmetric", 15, 3, 37, 3, -2))
sketch1.addConstraint(Sketcher.Constraint("Symmetric", 11, 3, 41, 3, -2))
sketch1.addConstraint(Sketcher.Constraint("Perpendicular", 6, 10))
sketch1.addConstraint(Sketcher.Constraint("Parallel", 10, 24))
sketch1.addConstraint(Sketcher.Constraint("Perpendicular", 24, 28))
sketch1.addConstraint(Sketcher.Constraint("Perpendicular", 42, 46))
sketch1.addConstraint(Sketcher.Constraint("Perpendicular", 60, 64))
sketch1.addConstraint(Sketcher.Constraint("Horizontal", 9, 3, 43, 3))
sketch1.addConstraint(Sketcher.Constraint("Equal", 70, 0))
sketch1.addConstraint(Sketcher.Constraint("Equal", 66, 4))
sketch1.addConstraint(Sketcher.Constraint("Equal", 62, 8))
sketch1.addConstraint(Sketcher.Constraint("Equal", 50, 20))
sketch1.addConstraint(Sketcher.Constraint("Equal", 10, 24))
sketch1.addConstraint(Sketcher.Constraint("Radius", 1, Q("0.03 in")))
sketch1.addConstraint(Sketcher.Constraint("Radius", 17, Q("0.12 in")))
sketch1.addConstraint(Sketcher.Constraint("Diameter", 72, Q("0.268 in")))
sketch1.addConstraint(Sketcher.Constraint("Radius", 7, Q("0.118 in")))
sketch1.addConstraint(Sketcher.Constraint("DistanceX", 2, 1, 2, 2, Q("0.117 in")))
sketch1.addConstraint(Sketcher.Constraint("DistanceX", 22, 2, 22, 1, Q("0.215 in")))
sketch1.addConstraint(Sketcher.Constraint("DistanceY", -1, 1, 1, 3, Q("0.1875 in")))
sketch1.addConstraint(Sketcher.Constraint("DistanceX", 18, 1, 18, 2, 12.1895))
sketch1.addConstraint(Sketcher.Constraint("DistanceX", 26, 1, 26, 2, 6.1493))
sketch1.setExpression("Constraints[159]", "Params.sketch1_radius")
sketch1.setExpression("Constraints[160]", "Params.sketch1_radius2")
sketch1.setExpression("Constraints[161]", "Params.sketch1_diameter")
sketch1.setExpression("Constraints[162]", "Params.sketch1_radius3")
sketch1.setExpression("Constraints[163]", "Params.sketch1_width")
pad1 = body.newObject("PartDesign::Pad", "Pad")
pad1.Profile = sketch1
pad1.setExpression("Length", "Params.pad1_length")
pad1.Midplane = True

doc.recompute()
